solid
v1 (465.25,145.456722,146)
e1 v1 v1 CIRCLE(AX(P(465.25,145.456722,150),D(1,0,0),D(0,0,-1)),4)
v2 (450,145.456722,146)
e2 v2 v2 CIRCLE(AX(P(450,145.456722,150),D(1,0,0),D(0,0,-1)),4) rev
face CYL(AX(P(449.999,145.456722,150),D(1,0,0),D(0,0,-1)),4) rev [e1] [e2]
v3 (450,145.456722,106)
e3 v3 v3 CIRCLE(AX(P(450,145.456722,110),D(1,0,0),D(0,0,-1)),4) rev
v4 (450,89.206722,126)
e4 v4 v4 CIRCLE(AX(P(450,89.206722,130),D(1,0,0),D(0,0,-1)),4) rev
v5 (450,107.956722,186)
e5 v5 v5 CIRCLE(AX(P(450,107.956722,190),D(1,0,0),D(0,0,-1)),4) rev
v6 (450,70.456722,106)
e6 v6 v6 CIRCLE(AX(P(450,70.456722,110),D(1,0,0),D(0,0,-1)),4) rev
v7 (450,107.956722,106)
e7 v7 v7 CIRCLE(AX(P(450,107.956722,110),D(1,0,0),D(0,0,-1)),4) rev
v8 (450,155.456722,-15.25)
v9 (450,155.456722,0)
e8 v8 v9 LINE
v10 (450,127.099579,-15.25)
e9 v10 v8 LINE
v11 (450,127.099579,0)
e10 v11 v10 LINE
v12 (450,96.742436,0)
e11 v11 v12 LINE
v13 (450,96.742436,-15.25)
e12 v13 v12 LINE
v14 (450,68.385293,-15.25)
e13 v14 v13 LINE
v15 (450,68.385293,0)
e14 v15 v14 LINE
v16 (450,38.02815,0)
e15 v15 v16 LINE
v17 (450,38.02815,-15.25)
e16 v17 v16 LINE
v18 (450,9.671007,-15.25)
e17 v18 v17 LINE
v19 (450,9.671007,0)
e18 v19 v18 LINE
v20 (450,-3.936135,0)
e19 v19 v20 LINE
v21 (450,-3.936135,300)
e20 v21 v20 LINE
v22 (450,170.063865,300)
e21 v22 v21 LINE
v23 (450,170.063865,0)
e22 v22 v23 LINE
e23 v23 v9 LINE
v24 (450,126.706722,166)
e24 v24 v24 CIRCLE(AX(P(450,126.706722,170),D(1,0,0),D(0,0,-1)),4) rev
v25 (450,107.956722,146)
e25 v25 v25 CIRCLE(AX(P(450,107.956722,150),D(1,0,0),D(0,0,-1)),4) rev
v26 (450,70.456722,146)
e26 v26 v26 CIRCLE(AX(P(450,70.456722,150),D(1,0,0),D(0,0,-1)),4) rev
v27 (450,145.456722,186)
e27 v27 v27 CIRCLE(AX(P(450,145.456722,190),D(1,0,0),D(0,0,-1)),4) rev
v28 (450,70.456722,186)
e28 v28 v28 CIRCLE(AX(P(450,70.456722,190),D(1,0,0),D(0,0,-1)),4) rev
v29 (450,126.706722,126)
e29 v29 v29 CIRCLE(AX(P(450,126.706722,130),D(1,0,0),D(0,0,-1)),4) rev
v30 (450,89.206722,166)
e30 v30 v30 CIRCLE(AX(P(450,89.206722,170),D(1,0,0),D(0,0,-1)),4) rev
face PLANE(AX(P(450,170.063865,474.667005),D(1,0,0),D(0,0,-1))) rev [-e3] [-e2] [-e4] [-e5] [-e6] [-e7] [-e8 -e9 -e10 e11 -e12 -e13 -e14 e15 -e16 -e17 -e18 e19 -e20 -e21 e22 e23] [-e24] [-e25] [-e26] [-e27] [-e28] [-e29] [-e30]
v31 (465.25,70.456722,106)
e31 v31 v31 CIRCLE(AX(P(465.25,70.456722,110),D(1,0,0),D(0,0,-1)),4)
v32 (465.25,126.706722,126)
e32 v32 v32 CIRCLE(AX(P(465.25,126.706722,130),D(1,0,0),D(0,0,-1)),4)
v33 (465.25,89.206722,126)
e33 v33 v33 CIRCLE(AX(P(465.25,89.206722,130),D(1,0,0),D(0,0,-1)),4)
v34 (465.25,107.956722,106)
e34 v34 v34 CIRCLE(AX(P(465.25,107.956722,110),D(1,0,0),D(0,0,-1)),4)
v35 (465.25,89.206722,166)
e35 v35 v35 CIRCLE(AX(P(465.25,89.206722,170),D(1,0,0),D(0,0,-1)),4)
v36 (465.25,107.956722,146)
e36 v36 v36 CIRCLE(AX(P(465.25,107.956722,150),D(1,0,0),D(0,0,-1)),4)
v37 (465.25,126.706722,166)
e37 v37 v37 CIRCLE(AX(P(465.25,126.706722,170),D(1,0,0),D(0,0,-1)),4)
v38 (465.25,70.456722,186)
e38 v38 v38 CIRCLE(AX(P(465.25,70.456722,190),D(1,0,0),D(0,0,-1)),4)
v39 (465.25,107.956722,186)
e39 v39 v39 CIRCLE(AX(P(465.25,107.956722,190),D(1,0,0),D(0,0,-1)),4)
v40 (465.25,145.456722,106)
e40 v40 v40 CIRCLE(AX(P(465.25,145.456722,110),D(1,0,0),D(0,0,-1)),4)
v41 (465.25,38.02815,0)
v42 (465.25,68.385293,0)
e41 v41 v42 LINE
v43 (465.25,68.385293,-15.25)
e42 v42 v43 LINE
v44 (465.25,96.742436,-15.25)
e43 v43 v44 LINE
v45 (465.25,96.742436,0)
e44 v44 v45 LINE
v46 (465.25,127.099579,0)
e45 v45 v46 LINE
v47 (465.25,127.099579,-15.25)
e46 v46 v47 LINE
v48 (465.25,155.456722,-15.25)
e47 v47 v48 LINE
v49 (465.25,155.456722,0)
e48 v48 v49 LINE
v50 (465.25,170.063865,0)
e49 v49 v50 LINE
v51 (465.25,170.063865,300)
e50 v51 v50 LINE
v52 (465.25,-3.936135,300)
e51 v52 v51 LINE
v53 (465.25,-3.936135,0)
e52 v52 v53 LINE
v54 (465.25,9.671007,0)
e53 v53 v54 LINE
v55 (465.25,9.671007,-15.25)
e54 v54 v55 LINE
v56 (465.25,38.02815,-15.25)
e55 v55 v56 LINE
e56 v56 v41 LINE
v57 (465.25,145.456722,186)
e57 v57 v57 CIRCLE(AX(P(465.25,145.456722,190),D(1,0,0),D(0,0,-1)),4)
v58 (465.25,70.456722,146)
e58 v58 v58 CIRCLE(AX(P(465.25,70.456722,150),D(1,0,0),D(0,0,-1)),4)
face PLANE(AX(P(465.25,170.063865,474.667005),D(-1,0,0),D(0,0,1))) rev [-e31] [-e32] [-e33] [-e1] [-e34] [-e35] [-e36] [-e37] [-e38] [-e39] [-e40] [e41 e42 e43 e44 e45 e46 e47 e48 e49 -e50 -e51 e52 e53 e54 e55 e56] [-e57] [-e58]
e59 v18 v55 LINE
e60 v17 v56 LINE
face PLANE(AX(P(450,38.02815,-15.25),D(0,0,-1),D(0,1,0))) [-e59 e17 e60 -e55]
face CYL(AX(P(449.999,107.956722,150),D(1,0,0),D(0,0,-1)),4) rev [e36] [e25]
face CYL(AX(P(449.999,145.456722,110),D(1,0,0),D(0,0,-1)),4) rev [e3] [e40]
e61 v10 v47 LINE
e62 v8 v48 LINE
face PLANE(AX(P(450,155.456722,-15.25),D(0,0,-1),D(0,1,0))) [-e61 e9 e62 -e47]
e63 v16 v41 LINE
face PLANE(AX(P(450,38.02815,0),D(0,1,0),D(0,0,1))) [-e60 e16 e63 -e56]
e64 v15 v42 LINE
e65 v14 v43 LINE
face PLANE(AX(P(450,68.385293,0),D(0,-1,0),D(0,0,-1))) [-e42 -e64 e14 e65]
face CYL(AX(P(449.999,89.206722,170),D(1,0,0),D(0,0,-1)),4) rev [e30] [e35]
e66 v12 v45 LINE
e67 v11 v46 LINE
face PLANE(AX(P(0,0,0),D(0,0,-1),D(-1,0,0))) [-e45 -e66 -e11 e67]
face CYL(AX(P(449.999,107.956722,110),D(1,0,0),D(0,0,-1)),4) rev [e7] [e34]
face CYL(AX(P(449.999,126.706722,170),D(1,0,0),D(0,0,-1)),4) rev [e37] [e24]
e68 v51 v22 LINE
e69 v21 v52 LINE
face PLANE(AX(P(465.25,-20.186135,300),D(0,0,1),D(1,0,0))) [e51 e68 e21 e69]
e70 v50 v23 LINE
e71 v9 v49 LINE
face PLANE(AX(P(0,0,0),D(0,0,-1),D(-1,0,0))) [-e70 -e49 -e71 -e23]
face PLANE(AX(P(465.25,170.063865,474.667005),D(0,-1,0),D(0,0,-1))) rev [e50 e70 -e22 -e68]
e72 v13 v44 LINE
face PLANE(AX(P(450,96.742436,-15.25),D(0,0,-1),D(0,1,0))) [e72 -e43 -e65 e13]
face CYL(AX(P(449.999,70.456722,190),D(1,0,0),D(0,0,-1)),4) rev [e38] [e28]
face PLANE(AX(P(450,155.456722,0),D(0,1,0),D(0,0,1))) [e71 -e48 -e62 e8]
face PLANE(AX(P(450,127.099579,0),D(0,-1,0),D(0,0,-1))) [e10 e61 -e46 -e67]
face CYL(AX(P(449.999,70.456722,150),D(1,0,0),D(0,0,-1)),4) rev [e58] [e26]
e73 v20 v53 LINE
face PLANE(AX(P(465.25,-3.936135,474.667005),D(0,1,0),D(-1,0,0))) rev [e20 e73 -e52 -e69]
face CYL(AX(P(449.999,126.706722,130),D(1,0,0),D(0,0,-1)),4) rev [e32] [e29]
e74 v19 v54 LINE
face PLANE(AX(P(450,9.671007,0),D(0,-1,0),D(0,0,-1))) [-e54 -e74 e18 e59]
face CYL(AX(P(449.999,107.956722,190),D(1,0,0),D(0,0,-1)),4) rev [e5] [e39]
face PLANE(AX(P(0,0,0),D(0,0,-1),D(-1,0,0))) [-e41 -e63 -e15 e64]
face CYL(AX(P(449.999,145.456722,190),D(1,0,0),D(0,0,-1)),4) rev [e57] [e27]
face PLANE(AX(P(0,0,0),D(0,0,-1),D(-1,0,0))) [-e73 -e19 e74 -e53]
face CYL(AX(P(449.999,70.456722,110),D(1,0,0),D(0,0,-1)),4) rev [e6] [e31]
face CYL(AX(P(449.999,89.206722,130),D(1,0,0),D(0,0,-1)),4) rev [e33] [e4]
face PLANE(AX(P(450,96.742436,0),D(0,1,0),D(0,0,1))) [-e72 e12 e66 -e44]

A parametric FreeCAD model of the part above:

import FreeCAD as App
import Part
import Sketcher

V = App.Vector
Q = App.Units.Quantity


def add_polygon(sketch, points):
    """Adds a closed chain of lines whose ends are joined by coincident constraints."""
    first, n = sketch.GeometryCount, len(points)
    for a, b in zip(points, points[1:] + points[:1]):
        sketch.addGeometry(Part.LineSegment(App.Vector(*a, 0), App.Vector(*b, 0)), False)
    for i in range(n):
        sketch.addConstraint(Sketcher.Constraint("Coincident", first + i, 2, first + (i + 1) % n, 1))

doc = App.newDocument("Part")
body = doc.addObject("PartDesign::Body", "Body")

sketch1 = doc.addObject("Sketcher::SketchObject", "Sketch")
body.addObject(sketch1)
sketch1.AttachmentSupport = (doc.XY_Plane, [""])
sketch1.MapMode = "FlatFace"
add_polygon(sketch1, [(450, 170.063865), (450, -3.936135), (465.25, -3.936135), (465.25, 170.063865)])
sketch1.addConstraint([
    Sketcher.Constraint("Vertical", 0),
    Sketcher.Constraint("Horizontal", 1),
    Sketcher.Constraint("Vertical", 2),
    Sketcher.Constraint("Horizontal", 3),
    Sketcher.Constraint("DistanceY", 0, 2, 0, 1, Q("174 mm")),
    Sketcher.Constraint("DistanceX", -1, 1, 0, 2, Q("450 mm")),
    Sketcher.Constraint("DistanceX", 1, 1, 1, 2, Q("15.25 mm")),
    Sketcher.Constraint("DistanceY", 0, 2, -1, 1, Q("3.936135 mm")),
])
pad1 = doc.addObject("PartDesign::Pad", "Pad")
body.addObject(pad1)
pad1.Profile = sketch1
pad1.Length = 300

sketch2 = doc.addObject("Sketcher::SketchObject", "Sketch001")
body.addObject(sketch2)
sketch2.AttachmentSupport = (doc.YZ_Plane, [""])
sketch2.MapMode = "FlatFace"
sketch2.AttachmentOffset = App.Placement(V(0, 0, 465.25), App.Rotation())
add_polygon(sketch2, [(155.456722, 0), (127.099579, 0), (127.099579, -15.25), (155.456722, -15.25)])
add_polygon(sketch2, [(96.742436, 0), (68.385293, 0), (68.385293, -15.25), (96.742436, -15.25)])
add_polygon(sketch2, [(38.02815, 0), (9.671007, 0), (9.671007, -15.25), (38.02815, -15.25)])
sketch2.addConstraint([
    Sketcher.Constraint("Horizontal", 0),
    Sketcher.Constraint("Vertical", 1),
    Sketcher.Constraint("Horizontal", 2),
    Sketcher.Constraint("Vertical", 3),
    Sketcher.Constraint("Horizontal", 4),
    Sketcher.Constraint("Vertical", 5),
    Sketcher.Constraint("Horizontal", 6),
    Sketcher.Constraint("Vertical", 7),
    Sketcher.Constraint("Horizontal", 8),
    Sketcher.Constraint("Vertical", 9),
    Sketcher.Constraint("Horizontal", 10),
    Sketcher.Constraint("Vertical", 11),
    Sketcher.Constraint("PointOnObject", 0, 2, -1),
    Sketcher.Constraint("PointOnObject", 4, 2, -1),
    Sketcher.Constraint("PointOnObject", 8, 2, -1),
    Sketcher.Constraint("Horizontal", 2, 2, 5, 2),
    Sketcher.Constraint("Horizontal", 6, 2, 9, 2),
    Sketcher.Constraint("Equal", 2, 4),
    Sketcher.Constraint("Equal", 6, 8),
    Sketcher.Constraint("DistanceY", 1, 2, 1, 1, Q("15.25 mm")),
    Sketcher.Constraint("DistanceX", 0, 2, 0, 1, Q("28.357143 mm")),
    Sketcher.Constraint("DistanceX", -1, 1, 0, 2, Q("127.099579 mm")),
    Sketcher.Constraint("DistanceX", -1, 1, 10, 2, Q("38.02815 mm")),
    Sketcher.Constraint("DistanceX", 4, 2, 3, 2, Q("87.071429 mm")),
])
pad2 = doc.addObject("PartDesign::Pad", "Pad001")
body.addObject(pad2)
pad2.Profile = sketch2
pad2.Length = 15.25
pad2.Reversed = True

sketch3 = doc.addObject("Sketcher::SketchObject", "Sketch002")
body.addObject(sketch3)
sketch3.AttachmentSupport = (doc.YZ_Plane, [""])
sketch3.MapMode = "FlatFace"
sketch3.AttachmentOffset = App.Placement(V(0, 0, 465.25), App.Rotation())
sketch3.addGeometry(Part.Circle(V(145.456722, 110, 0), V(0, 0, 1), 4), False)
sketch3.addConstraint([
    Sketcher.Constraint("Diameter", 0, Q("8 mm")),
    Sketcher.Constraint("DistanceY", -1, 1, 0, 3, Q("110 mm")),
    Sketcher.Constraint("DistanceX", -1, 1, 0, 3, Q("145.456722 mm")),
])
pocket1 = doc.addObject("PartDesign::Pocket", "Pocket")
body.addObject(pocket1)
pocket1.Profile = sketch3
pocket1.Type = "UpToFirst"

sketch4 = doc.addObject("Sketcher::SketchObject", "Sketch003")
body.addObject(sketch4)
sketch4.AttachmentSupport = (doc.YZ_Plane, [""])
sketch4.MapMode = "FlatFace"
sketch4.AttachmentOffset = App.Placement(V(0, 0, 465.25), App.Rotation())
sketch4.addGeometry(Part.Circle(V(70.456722, 110, 0), V(0, 0, 1), 4), False)
sketch4.addConstraint([
    Sketcher.Constraint("Diameter", 0, Q("8 mm")),
    Sketcher.Constraint("DistanceY", -1, 1, 0, 3, Q("110 mm")),
    Sketcher.Constraint("DistanceX", -1, 1, 0, 3, Q("70.456722 mm")),
])
pocket2 = doc.addObject("PartDesign::Pocket", "Pocket001")
body.addObject(pocket2)
pocket2.Profile = sketch4
pocket2.Type = "UpToFirst"

sketch5 = doc.addObject("Sketcher::SketchObject", "Sketch004")
body.addObject(sketch5)
sketch5.AttachmentSupport = (doc.YZ_Plane, [""])
sketch5.MapMode = "FlatFace"
sketch5.AttachmentOffset = App.Placement(V(0, 0, 465.25), App.Rotation())
sketch5.addGeometry(Part.Circle(V(70.456722, 150, 0), V(0, 0, 1), 4), False)
sketch5.addConstraint([
    Sketcher.Constraint("Diameter", 0, Q("8 mm")),
    Sketcher.Constraint("DistanceY", -1, 1, 0, 3, Q("150 mm")),
    Sketcher.Constraint("DistanceX", -1, 1, 0, 3, Q("70.456722 mm")),
])
pocket3 = doc.addObject("PartDesign::Pocket", "Pocket002")
body.addObject(pocket3)
pocket3.Profile = sketch5
pocket3.Type = "UpToFirst"

sketch6 = doc.addObject("Sketcher::SketchObject", "Sketch005")
body.addObject(sketch6)
sketch6.AttachmentSupport = (doc.YZ_Plane, [""])
sketch6.MapMode = "FlatFace"
sketch6.AttachmentOffset = App.Placement(V(0, 0, 465.25), App.Rotation())
sketch6.addGeometry(Part.Circle(V(145.456722, 150, 0), V(0, 0, 1), 4), False)
sketch6.addConstraint([
    Sketcher.Constraint("Diameter", 0, Q("8 mm")),
    Sketcher.Constraint("DistanceY", -1, 1, 0, 3, Q("150 mm")),
    Sketcher.Constraint("DistanceX", -1, 1, 0, 3, Q("145.456722 mm")),
])
pocket4 = doc.addObject("PartDesign::Pocket", "Pocket003")
body.addObject(pocket4)
pocket4.Profile = sketch6
pocket4.Type = "UpToFirst"

sketch7 = doc.addObject("Sketcher::SketchObject", "Sketch006")
body.addObject(sketch7)
sketch7.AttachmentSupport = (doc.YZ_Plane, [""])
sketch7.MapMode = "FlatFace"
sketch7.AttachmentOffset = App.Placement(V(0, 0, 465.25), App.Rotation())
sketch7.addGeometry(Part.Circle(V(145.456722, 190, 0), V(0, 0, 1), 4), False)
sketch7.addConstraint([
    Sketcher.Constraint("Diameter", 0, Q("8 mm")),
    Sketcher.Constraint("DistanceY", -1, 1, 0, 3, Q("190 mm")),
    Sketcher.Constraint("DistanceX", -1, 1, 0, 3, Q("145.456722 mm")),
])
pocket5 = doc.addObject("PartDesign::Pocket", "Pocket004")
body.addObject(pocket5)
pocket5.Profile = sketch7
pocket5.Type = "UpToFirst"

sketch8 = doc.addObject("Sketcher::SketchObject", "Sketch007")
body.addObject(sketch8)
sketch8.AttachmentSupport = (doc.YZ_Plane, [""])
sketch8.MapMode = "FlatFace"
sketch8.AttachmentOffset = App.Placement(V(0, 0, 465.25), App.Rotation())
sketch8.addGeometry(Part.Circle(V(70.456722, 190, 0), V(0, 0, 1), 4), False)
sketch8.addConstraint([
    Sketcher.Constraint("Diameter", 0, Q("8 mm")),
    Sketcher.Constraint("DistanceY", -1, 1, 0, 3, Q("190 mm")),
    Sketcher.Constraint("DistanceX", -1, 1, 0, 3, Q("70.456722 mm")),
])
pocket6 = doc.addObject("PartDesign::Pocket", "Pocket005")
body.addObject(pocket6)
pocket6.Profile = sketch8
pocket6.Type = "UpToFirst"

sketch9 = doc.addObject("Sketcher::SketchObject", "Sketch008")
body.addObject(sketch9)
sketch9.AttachmentSupport = (doc.YZ_Plane, [""])
sketch9.MapMode = "FlatFace"
sketch9.AttachmentOffset = App.Placement(V(0, 0, 465.25), App.Rotation())
sketch9.addGeometry(Part.Circle(V(126.706722, 130, 0), V(0, 0, 1), 4), False)
sketch9.addConstraint([
    Sketcher.Constraint("Diameter", 0, Q("8 mm")),
    Sketcher.Constraint("DistanceY", -1, 1, 0, 3, Q("130 mm")),
    Sketcher.Constraint("DistanceX", -1, 1, 0, 3, Q("126.706722 mm")),
])
pocket7 = doc.addObject("PartDesign::Pocket", "Pocket006")
body.addObject(pocket7)
pocket7.Profile = sketch9
pocket7.Type = "UpToFirst"

sketch10 = doc.addObject("Sketcher::SketchObject", "Sketch009")
body.addObject(sketch10)
sketch10.AttachmentSupport = (doc.YZ_Plane, [""])
sketch10.MapMode = "FlatFace"
sketch10.AttachmentOffset = App.Placement(V(0, 0, 465.25), App.Rotation())
sketch10.addGeometry(Part.Circle(V(126.706722, 170, 0), V(0, 0, 1), 4), False)
sketch10.addConstraint([
    Sketcher.Constraint("Diameter", 0, Q("8 mm")),
    Sketcher.Constraint("DistanceY", -1, 1, 0, 3, Q("170 mm")),
    Sketcher.Constraint("DistanceX", -1, 1, 0, 3, Q("126.706722 mm")),
])
pocket8 = doc.addObject("PartDesign::Pocket", "Pocket007")
body.addObject(pocket8)
pocket8.Profile = sketch10
pocket8.Type = "UpToFirst"

sketch11 = doc.addObject("Sketcher::SketchObject", "Sketch010")
body.addObject(sketch11)
sketch11.AttachmentSupport = (doc.YZ_Plane, [""])
sketch11.MapMode = "FlatFace"
sketch11.AttachmentOffset = App.Placement(V(0, 0, 465.25), App.Rotation())
sketch11.addGeometry(Part.Circle(V(107.956722, 190, 0), V(0, 0, 1), 4), False)
sketch11.addConstraint([
    Sketcher.Constraint("Diameter", 0, Q("8 mm")),
    Sketcher.Constraint("DistanceY", -1, 1, 0, 3, Q("190 mm")),
    Sketcher.Constraint("DistanceX", -1, 1, 0, 3, Q("107.956722 mm")),
])
pocket9 = doc.addObject("PartDesign::Pocket", "Pocket008")
body.addObject(pocket9)
pocket9.Profile = sketch11
pocket9.Type = "UpToFirst"

sketch12 = doc.addObject("Sketcher::SketchObject", "Sketch011")
body.addObject(sketch12)
sketch12.AttachmentSupport = (doc.YZ_Plane, [""])
sketch12.MapMode = "FlatFace"
sketch12.AttachmentOffset = App.Placement(V(0, 0, 465.25), App.Rotation())
sketch12.addGeometry(Part.Circle(V(89.206722, 170, 0), V(0, 0, 1), 4), False)
sketch12.addConstraint([
    Sketcher.Constraint("Diameter", 0, Q("8 mm")),
    Sketcher.Constraint("DistanceY", -1, 1, 0, 3, Q("170 mm")),
    Sketcher.Constraint("DistanceX", -1, 1, 0, 3, Q("89.206722 mm")),
])
pocket10 = doc.addObject("PartDesign::Pocket", "Pocket009")
body.addObject(pocket10)
pocket10.Profile = sketch12
pocket10.Type = "UpToFirst"

sketch13 = doc.addObject("Sketcher::SketchObject", "Sketch012")
body.addObject(sketch13)
sketch13.AttachmentSupport = (doc.YZ_Plane, [""])
sketch13.MapMode = "FlatFace"
sketch13.AttachmentOffset = App.Placement(V(0, 0, 465.25), App.Rotation())
sketch13.addGeometry(Part.Circle(V(89.206722, 130, 0), V(0, 0, 1), 4), False)
sketch13.addConstraint([
    Sketcher.Constraint("Diameter", 0, Q("8 mm")),
    Sketcher.Constraint("DistanceY", -1, 1, 0, 3, Q("130 mm")),
    Sketcher.Constraint("DistanceX", -1, 1, 0, 3, Q("89.206722 mm")),
])
pocket11 = doc.addObject("PartDesign::Pocket", "Pocket010")
body.addObject(pocket11)
pocket11.Profile = sketch13
pocket11.Type = "UpToFirst"

sketch14 = doc.addObject("Sketcher::SketchObject", "Sketch013")
body.addObject(sketch14)
sketch14.AttachmentSupport = (doc.YZ_Plane, [""])
sketch14.MapMode = "FlatFace"
sketch14.AttachmentOffset = App.Placement(V(0, 0, 465.25), App.Rotation())
sketch14.addGeometry(Part.Circle(V(107.956722, 110, 0), V(0, 0, 1), 4), False)
sketch14.addConstraint([
    Sketcher.Constraint("Diameter", 0, Q("8 mm")),
    Sketcher.Constraint("DistanceY", -1, 1, 0, 3, Q("110 mm")),
    Sketcher.Constraint("DistanceX", -1, 1, 0, 3, Q("107.956722 mm")),
])
pocket12 = doc.addObject("PartDesign::Pocket", "Pocket011")
body.addObject(pocket12)
pocket12.Profile = sketch14
pocket12.Type = "UpToFirst"

sketch15 = doc.addObject("Sketcher::SketchObject", "Sketch014")
body.addObject(sketch15)
sketch15.AttachmentSupport = (doc.YZ_Plane, [""])
sketch15.MapMode = "FlatFace"
sketch15.AttachmentOffset = App.Placement(V(0, 0, 465.25), App.Rotation())
sketch15.addGeometry(Part.Circle(V(107.956722, 150, 0), V(0, 0, 1), 4), False)
sketch15.addConstraint([
    Sketcher.Constraint("Diameter", 0, Q("8 mm")),
    Sketcher.Constraint("DistanceY", -1, 1, 0, 3, Q("150 mm")),
    Sketcher.Constraint("DistanceX", -1, 1, 0, 3, Q("107.956722 mm")),
])
pocket13 = doc.addObject("PartDesign::Pocket", "Pocket012")
body.addObject(pocket13)
pocket13.Profile = sketch15
pocket13.Type = "UpToFirst"

doc.recompute()
